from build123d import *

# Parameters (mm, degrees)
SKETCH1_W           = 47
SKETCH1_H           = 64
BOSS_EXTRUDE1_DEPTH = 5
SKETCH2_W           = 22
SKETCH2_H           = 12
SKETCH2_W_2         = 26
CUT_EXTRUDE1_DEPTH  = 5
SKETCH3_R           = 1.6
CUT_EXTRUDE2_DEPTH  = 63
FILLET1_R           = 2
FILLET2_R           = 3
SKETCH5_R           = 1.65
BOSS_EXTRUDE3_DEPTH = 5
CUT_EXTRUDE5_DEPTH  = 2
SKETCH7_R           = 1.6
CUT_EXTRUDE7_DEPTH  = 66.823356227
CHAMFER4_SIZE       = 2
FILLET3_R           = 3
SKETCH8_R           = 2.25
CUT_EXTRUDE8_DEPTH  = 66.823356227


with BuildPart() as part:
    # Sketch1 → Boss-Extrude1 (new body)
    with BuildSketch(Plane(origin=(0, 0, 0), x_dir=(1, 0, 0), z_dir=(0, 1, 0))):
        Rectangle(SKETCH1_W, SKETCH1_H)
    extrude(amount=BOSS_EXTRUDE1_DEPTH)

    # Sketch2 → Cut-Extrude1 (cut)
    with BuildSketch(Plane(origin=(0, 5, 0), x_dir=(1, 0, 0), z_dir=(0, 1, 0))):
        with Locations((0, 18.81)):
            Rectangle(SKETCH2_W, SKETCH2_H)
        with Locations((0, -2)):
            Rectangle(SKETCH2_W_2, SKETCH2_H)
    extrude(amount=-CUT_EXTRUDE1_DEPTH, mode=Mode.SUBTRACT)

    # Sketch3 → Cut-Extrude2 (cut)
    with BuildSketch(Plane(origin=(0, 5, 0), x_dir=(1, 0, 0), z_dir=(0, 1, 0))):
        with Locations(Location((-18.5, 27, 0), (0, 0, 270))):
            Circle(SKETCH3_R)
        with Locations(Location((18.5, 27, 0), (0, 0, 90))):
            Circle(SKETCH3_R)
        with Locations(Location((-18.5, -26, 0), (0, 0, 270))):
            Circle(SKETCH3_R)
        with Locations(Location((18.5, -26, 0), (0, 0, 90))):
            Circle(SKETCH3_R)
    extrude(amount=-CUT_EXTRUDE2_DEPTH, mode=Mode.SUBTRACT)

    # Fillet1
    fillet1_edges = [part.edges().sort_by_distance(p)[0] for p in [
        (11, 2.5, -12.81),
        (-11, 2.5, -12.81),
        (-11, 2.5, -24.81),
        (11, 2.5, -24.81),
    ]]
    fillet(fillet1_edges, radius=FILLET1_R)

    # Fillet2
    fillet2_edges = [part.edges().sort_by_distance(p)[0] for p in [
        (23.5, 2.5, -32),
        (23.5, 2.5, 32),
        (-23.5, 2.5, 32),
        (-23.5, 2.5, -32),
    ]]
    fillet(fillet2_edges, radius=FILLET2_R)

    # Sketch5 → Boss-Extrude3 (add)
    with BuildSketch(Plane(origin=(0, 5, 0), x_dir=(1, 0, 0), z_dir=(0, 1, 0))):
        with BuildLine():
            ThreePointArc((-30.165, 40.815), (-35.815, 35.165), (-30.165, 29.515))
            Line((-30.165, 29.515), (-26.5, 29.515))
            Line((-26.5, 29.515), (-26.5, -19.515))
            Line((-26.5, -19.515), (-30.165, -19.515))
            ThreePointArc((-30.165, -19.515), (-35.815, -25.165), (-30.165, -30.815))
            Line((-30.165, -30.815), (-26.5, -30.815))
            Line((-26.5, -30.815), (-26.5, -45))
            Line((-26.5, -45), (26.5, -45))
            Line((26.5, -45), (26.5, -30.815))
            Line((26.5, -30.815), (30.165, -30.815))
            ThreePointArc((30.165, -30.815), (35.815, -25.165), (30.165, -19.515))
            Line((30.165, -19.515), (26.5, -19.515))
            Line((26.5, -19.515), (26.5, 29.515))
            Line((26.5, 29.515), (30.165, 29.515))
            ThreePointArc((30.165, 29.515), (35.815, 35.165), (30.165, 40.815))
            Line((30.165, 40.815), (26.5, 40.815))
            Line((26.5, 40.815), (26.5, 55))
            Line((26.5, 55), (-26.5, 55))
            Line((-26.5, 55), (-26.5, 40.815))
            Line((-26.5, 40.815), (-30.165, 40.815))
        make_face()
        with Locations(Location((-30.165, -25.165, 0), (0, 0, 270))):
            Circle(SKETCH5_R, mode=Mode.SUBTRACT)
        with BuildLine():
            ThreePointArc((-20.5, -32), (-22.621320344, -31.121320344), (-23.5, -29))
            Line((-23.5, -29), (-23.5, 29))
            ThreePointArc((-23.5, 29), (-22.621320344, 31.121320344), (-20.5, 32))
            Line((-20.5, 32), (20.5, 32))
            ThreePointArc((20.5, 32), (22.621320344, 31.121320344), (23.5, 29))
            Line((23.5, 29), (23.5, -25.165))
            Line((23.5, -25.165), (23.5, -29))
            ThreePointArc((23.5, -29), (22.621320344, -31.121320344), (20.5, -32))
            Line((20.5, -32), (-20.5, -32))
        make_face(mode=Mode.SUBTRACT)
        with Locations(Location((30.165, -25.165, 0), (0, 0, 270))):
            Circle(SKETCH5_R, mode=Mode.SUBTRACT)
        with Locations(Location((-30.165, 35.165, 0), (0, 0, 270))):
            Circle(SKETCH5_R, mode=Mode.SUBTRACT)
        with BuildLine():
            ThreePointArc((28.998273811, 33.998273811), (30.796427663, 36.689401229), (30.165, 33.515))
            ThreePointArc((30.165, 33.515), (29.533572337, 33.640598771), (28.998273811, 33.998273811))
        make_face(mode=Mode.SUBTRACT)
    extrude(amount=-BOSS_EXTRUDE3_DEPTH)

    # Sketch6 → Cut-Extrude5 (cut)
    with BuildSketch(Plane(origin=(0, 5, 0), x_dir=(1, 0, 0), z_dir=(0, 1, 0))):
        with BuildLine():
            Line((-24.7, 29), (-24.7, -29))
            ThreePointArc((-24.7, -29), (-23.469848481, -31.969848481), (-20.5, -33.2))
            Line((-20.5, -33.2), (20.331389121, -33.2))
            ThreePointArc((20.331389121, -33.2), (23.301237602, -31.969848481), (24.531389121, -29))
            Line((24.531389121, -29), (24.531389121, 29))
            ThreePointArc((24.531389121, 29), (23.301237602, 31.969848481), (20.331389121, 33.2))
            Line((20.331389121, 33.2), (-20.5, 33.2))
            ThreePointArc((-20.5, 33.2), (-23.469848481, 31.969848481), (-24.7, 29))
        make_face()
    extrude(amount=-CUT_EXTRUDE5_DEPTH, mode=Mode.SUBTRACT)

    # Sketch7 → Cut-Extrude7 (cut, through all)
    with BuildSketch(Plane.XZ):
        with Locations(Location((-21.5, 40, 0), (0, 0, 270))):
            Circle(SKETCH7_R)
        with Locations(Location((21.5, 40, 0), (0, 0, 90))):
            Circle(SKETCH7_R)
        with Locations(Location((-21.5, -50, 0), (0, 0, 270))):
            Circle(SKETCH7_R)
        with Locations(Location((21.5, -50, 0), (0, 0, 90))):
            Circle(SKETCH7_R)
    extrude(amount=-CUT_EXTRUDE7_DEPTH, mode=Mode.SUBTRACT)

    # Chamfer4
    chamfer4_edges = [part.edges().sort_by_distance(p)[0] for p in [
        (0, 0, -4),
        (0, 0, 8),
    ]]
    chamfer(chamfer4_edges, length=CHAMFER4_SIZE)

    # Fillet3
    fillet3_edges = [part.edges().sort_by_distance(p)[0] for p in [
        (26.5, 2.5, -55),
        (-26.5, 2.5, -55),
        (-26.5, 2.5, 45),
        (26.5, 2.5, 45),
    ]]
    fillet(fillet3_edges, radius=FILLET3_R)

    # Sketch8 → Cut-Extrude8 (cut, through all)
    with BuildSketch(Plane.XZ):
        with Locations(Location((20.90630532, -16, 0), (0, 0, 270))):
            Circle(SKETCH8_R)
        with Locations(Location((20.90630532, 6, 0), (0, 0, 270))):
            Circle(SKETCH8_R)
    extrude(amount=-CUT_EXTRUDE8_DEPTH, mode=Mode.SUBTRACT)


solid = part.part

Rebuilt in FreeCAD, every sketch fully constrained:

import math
import FreeCAD as App
import Part
import Sketcher

V = App.Vector
Q = App.Units.Quantity


def edges_at(feature, points):
    """Names of the edges that pass closest to the given points."""
    edges = feature.Shape.Edges
    near = lambda p: min(range(len(edges)), key=lambda i: edges[i].distToShape(Part.Vertex(*p))[0])
    return sorted({f"Edge{near(p) + 1}" for p in points})

doc = App.newDocument("Part")
params = doc.addObject("Spreadsheet::Sheet", "Params")
for row, (alias, value) in enumerate([
    ("sketch1_width", "47 mm"),
    ("sketch1_height", "64 mm"),
    ("pad1_length", "5 mm"),
    ("sketch2_width", "22 mm"),
    ("sketch2_width2", "26 mm"),
    ("sketch2_height", "12 mm"),
    ("pocket1_length", "5 mm"),
    ("sketch3_diameter", "3.2 mm"),
    ("pocket2_length", "63 mm"),
    ("fillet_radius", "2 mm"),
    ("fillet2_radius", "3 mm"),
    ("sketch4_radius", "3 mm"),
    ("sketch4_diameter", "3.3 mm"),
    ("sketch4_width", "53 mm"),
    ("sketch4_width2", "41 mm"),
    ("sketch4_height", "58 mm"),
    ("pad2_length", "5 mm"),
    ("sketch5_radius", "4.2 mm"),
    ("sketch5_height", "58 mm"),
    ("pocket3_length", "2 mm"),
    ("sketch6_diameter", "3.2 mm"),
    ("chamfer_size", "2 mm"),
    ("fillet3_radius", "3 mm"),
    ("sketch7_diameter", "4.5 mm"),
], start=1):
    params.set(f"A{row}", alias)
    params.set(f"B{row}", "=" + value)
    params.setAlias(f"B{row}", alias)

body = doc.addObject("PartDesign::Body", "Body")

# Sketch on XZ plane
sketch1 = body.newObject("Sketcher::SketchObject", "Sketch")
sketch1.AttachmentSupport = (doc.getObject("XZ_Plane"), [""])
sketch1.MapMode = "FlatFace"
sketch1.addGeometry([
    Part.LineSegment(V(-24, -32, 0), V(-24, 32, 0)),
    Part.LineSegment(V(-24, 32, 0), V(24, 32, 0)),
    Part.LineSegment(V(24, 32, 0), V(24, -32, 0)),
    Part.LineSegment(V(24, -32, 0), V(-24, -32, 0)),
], False)
sketch1.addConstraint([
    Sketcher.Constraint("Coincident", 0, 2, 1, 1),
    Sketcher.Constraint("Coincident", 1, 2, 2, 1),
    Sketcher.Constraint("Coincident", 2, 2, 3, 1),
    Sketcher.Constraint("Coincident", 3, 2, 0, 1),
    Sketcher.Constraint("Vertical", 0),
    Sketcher.Constraint("Horizontal", 1),
    Sketcher.Constraint("Vertical", 2),
    Sketcher.Constraint("Horizontal", 3),
    Sketcher.Constraint("Symmetric", 0, 2, 2, 2, -1, 1),
    Sketcher.Constraint("DistanceX", 1, 1, 1, 2, Q("47 mm")),
    Sketcher.Constraint("DistanceY", 0, 1, 0, 2, Q("64 mm")),
])
sketch1.setExpression("Constraints[9]", "Params.sketch1_width")
sketch1.setExpression("Constraints[10]", "Params.sketch1_height")
pad1 = body.newObject("PartDesign::Pad", "Pad")
pad1.Profile = sketch1
pad1.setExpression("Length", "Params.pad1_length")
pad1.Reversed = True

# Sketch on XZ plane
sketch2 = body.newObject("Sketcher::SketchObject", "Sketch001")
sketch2.AttachmentSupport = (doc.getObject("XZ_Plane"), [""])
sketch2.MapMode = "FlatFace"
sketch2.AttachmentOffset = App.Placement(V(0, 0, -5), App.Rotation())
sketch2.addGeometry([
    Part.LineSegment(V(-11, -25, 0), V(-11, -13, 0)),  # 0
    Part.LineSegment(V(-11, -13, 0), V(11, -13, 0)),  # 1
    Part.LineSegment(V(11, -13, 0), V(11, -25, 0)),  # 2
    Part.LineSegment(V(11, -25, 0), V(-11, -25, 0)),  # 3
    Part.LineSegment(V(-13, -4, 0), V(-13, 8, 0)),  # 4
    Part.LineSegment(V(-13, 8, 0), V(13, 8, 0)),  # 5
    Part.LineSegment(V(13, 8, 0), V(13, -4, 0)),  # 6
    Part.LineSegment(V(13, -4, 0), V(-13, -4, 0)),  # 7
], False)
sketch2.addConstraint([
    Sketcher.Constraint("Coincident", 0, 2, 1, 1),
    Sketcher.Constraint("Coincident", 1, 2, 2, 1),
    Sketcher.Constraint("Coincident", 2, 2, 3, 1),
    Sketcher.Constraint("Coincident", 3, 2, 0, 1),
    Sketcher.Constraint("Coincident", 4, 2, 5, 1),
    Sketcher.Constraint("Coincident", 5, 2, 6, 1),
    Sketcher.Constraint("Coincident", 6, 2, 7, 1),
    Sketcher.Constraint("Coincident", 7, 2, 4, 1),
    Sketcher.Constraint("Vertical", 0),
    Sketcher.Constraint("Horizontal", 1),
    Sketcher.Constraint("Vertical", 2),
    Sketcher.Constraint("Horizontal", 3),
    Sketcher.Constraint("Vertical", 4),
    Sketcher.Constraint("Horizontal", 5),
    Sketcher.Constraint("Vertical", 6),
    Sketcher.Constraint("Horizontal", 7),
    Sketcher.Constraint("Equal", 2, 4),
    Sketcher.Constraint("DistanceX", 1, 1, 1, 2, Q("22 mm")),
    Sketcher.Constraint("DistanceX", 5, 1, 5, 2, Q("26 mm")),
    Sketcher.Constraint("DistanceY", 0, 1, 0, 2, Q("12 mm")),
    Sketcher.Constraint("DistanceX", 0, 2, -1, 1, Q("11 mm")),
    Sketcher.Constraint("DistanceX", 4, 2, -1, 1, Q("13 mm")),
    Sketcher.Constraint("DistanceY", -1, 1, 4, 2, Q("8 mm")),
    Sketcher.Constraint("DistanceY", 0, 2, -1, 1, Q("12.81 mm")),
])
sketch2.setExpression("Constraints[17]", "Params.sketch2_width")
sketch2.setExpression("Constraints[18]", "Params.sketch2_width2")
sketch2.setExpression("Constraints[19]", "Params.sketch2_height")
pocket1 = body.newObject("PartDesign::Pocket", "Pocket")
pocket1.Profile = sketch2
pocket1.setExpression("Length", "Params.pocket1_length")
pocket1.Reversed = True

# Sketch on XZ plane
sketch3 = body.newObject("Sketcher::SketchObject", "Sketch002")
sketch3.AttachmentSupport = (doc.getObject("XZ_Plane"), [""])
sketch3.MapMode = "FlatFace"
sketch3.AttachmentOffset = App.Placement(V(0, 0, -5), App.Rotation())
sketch3.addGeometry([
    Part.Circle(V(-18.5, -27, 0), V(0, 0, 1), 1.6),
    Part.Circle(V(18.5, -27, 0), V(0, 0, 1), 1.6),
    Part.Circle(V(-18.5, 26, 0), V(0, 0, 1), 1.6),
    Part.Circle(V(18.5, 26, 0), V(0, 0, 1), 1.6),
], False)
sketch3.addConstraint([
    Sketcher.Constraint("Equal", 0, 1),
    Sketcher.Constraint("Equal", 1, 2),
    Sketcher.Constraint("Equal", 2, 3),
    Sketcher.Constraint("Symmetric", 0, 3, 1, 3, -2),
    Sketcher.Constraint("Symmetric", 2, 3, 3, 3, -2),
    Sketcher.Constraint("Vertical", 0, 3, 2, 3),
    Sketcher.Constraint("Diameter", 0, Q("3.2 mm")),
    Sketcher.Constraint("DistanceY", 0, 3, -1, 1, Q("27 mm")),
    Sketcher.Constraint("DistanceY", -1, 1, 2, 3, Q("26 mm")),
    Sketcher.Constraint("DistanceX", 0, 3, 1, 3, Q("37 mm")),
])
sketch3.setExpression("Constraints[6]", "Params.sketch3_diameter")
pocket2 = body.newObject("PartDesign::Pocket", "Pocket001")
pocket2.Profile = sketch3
pocket2.setExpression("Length", "Params.pocket2_length")
pocket2.Reversed = True
doc.recompute()

fillet = body.newObject("PartDesign::Fillet", "Fillet")
fillet.Base = (pocket2, edges_at(pocket2, [
    (11, 2.5, -12.81),
    (-11, 2.5, -12.81),
    (-11, 2.5, -24.81),
    (11, 2.5, -24.81),
]))
fillet.setExpression("Radius", "Params.fillet_radius")
doc.recompute()

fillet2 = body.newObject("PartDesign::Fillet", "Fillet001")
fillet2.Base = (fillet, edges_at(fillet, [
    (23.5, 2.5, -32),
    (23.5, 2.5, 32),
    (-23.5, 2.5, 32),
    (-23.5, 2.5, -32),
]))
fillet2.setExpression("Radius", "Params.fillet2_radius")

# Sketch on XZ plane
sketch4 = body.newObject("Sketcher::SketchObject", "Sketch003")
sketch4.AttachmentSupport = (doc.getObject("XZ_Plane"), [""])
sketch4.MapMode = "FlatFace"
sketch4.AttachmentOffset = App.Placement(V(0, 0, -5), App.Rotation())
sketch4.addGeometry([
    Part.ArcOfCircle(Part.Circle(V(-30.2, -35.2, 0), V(0, 0, 1), 5.7), math.radians(90), math.radians(270)),  # 0
    Part.LineSegment(V(-30.2, -29.5, 0), V(-26.5, -29.5, 0)),  # 1
    Part.LineSegment(V(-26.5, -29.5, 0), V(-26.5, 19.5, 0)),  # 2
    Part.LineSegment(V(-26.5, 19.5, 0), V(-30.2, 19.5, 0)),  # 3
    Part.ArcOfCircle(Part.Circle(V(-30.2, 25.2, 0), V(0, 0, 1), 5.7), math.radians(90), math.radians(270)),  # 4
    Part.LineSegment(V(-30.2, 30.8, 0), V(-26.5, 30.8, 0)),  # 5
    Part.LineSegment(V(-26.5, 30.8, 0), V(-26.5, 45, 0)),  # 6
    Part.LineSegment(V(-26.5, 45, 0), V(26.5, 45, 0)),  # 7
    Part.LineSegment(V(26.5, 45, 0), V(26.5, 30.8, 0)),  # 8
    Part.LineSegment(V(26.5, 30.8, 0), V(30.2, 30.8, 0)),  # 9
    Part.ArcOfCircle(Part.Circle(V(30.2, 25.2, 0), V(0, 0, 1), 5.7), math.radians(-90), math.radians(90)),  # 10
    Part.LineSegment(V(30.2, 19.5, 0), V(26.5, 19.5, 0)),  # 11
    Part.LineSegment(V(26.5, 19.5, 0), V(26.5, -29.5, 0)),  # 12
    Part.LineSegment(V(26.5, -29.5, 0), V(30.2, -29.5, 0)),  # 13
    Part.ArcOfCircle(Part.Circle(V(30.2, -35.2, 0), V(0, 0, 1), 5.7), math.radians(-90), math.radians(90)),  # 14
    Part.LineSegment(V(30.2, -40.8, 0), V(26.5, -40.8, 0)),  # 15
    Part.LineSegment(V(26.5, -40.8, 0), V(26.5, -55, 0)),  # 16
    Part.LineSegment(V(26.5, -55, 0), V(-26.5, -55, 0)),  # 17
    Part.LineSegment(V(-26.5, -55, 0), V(-26.5, -40.8, 0)),  # 18
    Part.LineSegment(V(-26.5, -40.8, 0), V(-30.2, -40.8, 0)),  # 19
    Part.Circle(V(-30.2, 25.2, 0), V(0, 0, 1), 1.6),  # 20
    Part.LineSegment(V(20.5, 32, 0), V(-20.5, 32, 0)),  # 21
    Part.ArcOfCircle(Part.Circle(V(-20.5, 29, 0), V(0, 0, 1), 3), math.radians(90), math.radians(180)),  # 22
    Part.LineSegment(V(-23.5, 29, 0), V(-23.5, -29, 0)),  # 23
    Part.ArcOfCircle(Part.Circle(V(-20.5, -29, 0), V(0, 0, 1), 3), math.radians(180), math.radians(270)),  # 24
    Part.LineSegment(V(-20.5, -32, 0), V(20.5, -32, 0)),  # 25
    Part.ArcOfCircle(Part.Circle(V(20.5, -29, 0), V(0, 0, 1), 3), math.radians(-90), math.radians(0)),  # 26
    Part.LineSegment(V(23.5, -29, 0), V(23.5, 29, 0)),  # 27
    Part.ArcOfCircle(Part.Circle(V(20.5, 29, 0), V(0, 0, 1), 3), math.radians(0), math.radians(90)),  # 28
    Part.Circle(V(30.2, 25.2, 0), V(0, 0, 1), 1.6),  # 29
    Part.Circle(V(-30.2, -35.2, 0), V(0, 0, 1), 1.6),  # 30
    Part.ArcOfCircle(Part.Circle(V(30.2, -35.2, 0), V(0, 0, 1), 1.6), math.radians(90), math.radians(135)),  # 31
    Part.ArcOfCircle(Part.Circle(V(30.2, -35.2, 0), V(0, 0, 1), 1.6), math.radians(135), math.radians(450)),  # 32
], False)
sketch4.addConstraint([
    Sketcher.Constraint("Tangent", 0, 1, 1, 1),
    Sketcher.Constraint("Coincident", 1, 2, 2, 1),
    Sketcher.Constraint("Coincident", 2, 2, 3, 1),
    Sketcher.Constraint("Tangent", 3, 2, 4, 2),
    Sketcher.Constraint("Tangent", 4, 1, 5, 1),
    Sketcher.Constraint("Coincident", 5, 2, 6, 1),
    Sketcher.Constraint("Coincident", 6, 2, 7, 1),
    Sketcher.Constraint("Coincident", 7, 2, 8, 1),
    Sketcher.Constraint("Coincident", 8, 2, 9, 1),
    Sketcher.Constraint("Tangent", 9, 2, 10, 2),
    Sketcher.Constraint("Tangent", 10, 1, 11, 1),
    Sketcher.Constraint("Coincident", 11, 2, 12, 1),
    Sketcher.Constraint("Coincident", 12, 2, 13, 1),
    Sketcher.Constraint("Tangent", 13, 2, 14, 2),
    Sketcher.Constraint("Tangent", 14, 1, 15, 1),
    Sketcher.Constraint("Coincident", 15, 2, 16, 1),
    Sketcher.Constraint("Coincident", 16, 2, 17, 1),
    Sketcher.Constraint("Coincident", 17, 2, 18, 1),
    Sketcher.Constraint("Coincident", 18, 2, 19, 1),
    Sketcher.Constraint("Tangent", 19, 2, 0, 2),
    Sketcher.Constraint("Tangent", 21, 2, 22, 1),
    Sketcher.Constraint("Tangent", 22, 2, 23, 1),
    Sketcher.Constraint("Tangent", 23, 2, 24, 1),
    Sketcher.Constraint("Tangent", 24, 2, 25, 1),
    Sketcher.Constraint("Tangent", 25, 2, 26, 1),
    Sketcher.Constraint("Tangent", 26, 2, 27, 1),
    Sketcher.Constraint("Tangent", 27, 2, 28, 1),
    Sketcher.Constraint("Tangent", 28, 2, 21, 1),
    Sketcher.Constraint("Tangent", 31, 1, 32, 2),
    Sketcher.Constraint("Coincident", 32, 1, 31, 2),
    Sketcher.Constraint("Horizontal", 1),
    Sketcher.Constraint("Vertical", 2),
    Sketcher.Constraint("Horizontal", 3),
    Sketcher.Constraint("Horizontal", 5),
    Sketcher.Constraint("Vertical", 6),
    Sketcher.Constraint("Horizontal", 7),
    Sketcher.Constraint("Vertical", 8),
    Sketcher.Constraint("Horizontal", 9),
    Sketcher.Constraint("Horizontal", 11),
    Sketcher.Constraint("Vertical", 12),
    Sketcher.Constraint("Horizontal", 13),
    Sketcher.Constraint("Horizontal", 15),
    Sketcher.Constraint("Vertical", 16),
    Sketcher.Constraint("Horizontal", 17),
    Sketcher.Constraint("Vertical", 18),
    Sketcher.Constraint("Horizontal", 19),
    Sketcher.Constraint("Horizontal", 21),
    Sketcher.Constraint("Vertical", 23),
    Sketcher.Constraint("Horizontal", 25),
    Sketcher.Constraint("Vertical", 27),
    Sketcher.Constraint("Coincident", 20, 3, 4, 3),
    Sketcher.Constraint("Coincident", 29, 3, 10, 3),
    Sketcher.Constraint("Coincident", 30, 3, 0, 3),
    Sketcher.Constraint("Coincident", 31, 3, 14, 3),
    Sketcher.Constraint("Equal", 0, 4),
    Sketcher.Constraint("Equal", 4, 10),
    Sketcher.Constraint("Equal", 10, 14),
    Sketcher.Constraint("Equal", 22, 24),
    Sketcher.Constraint("Equal", 24, 26),
    Sketcher.Constraint("Equal", 26, 28),
    Sketcher.Constraint("Equal", 20, 29),
    Sketcher.Constraint("Equal", 29, 30),
    Sketcher.Constraint("Equal", 30, 31),
    Sketcher.Constraint("Symmetric", 22, 3, 26, 3, -1, 1),
    Sketcher.Constraint("Symmetric", 4, 3, 10, 3, -2),
    Sketcher.Constraint("Symmetric", 0, 3, 14, 3, -2),
    Sketcher.Constraint("Vertical", 0, 3, 4, 3),
    Sketcher.Constraint("Vertical", 2, 2, 5, 2),
    Sketcher.Constraint("Vertical", 8, 2, 11, 2),
    Sketcher.Constraint("Vertical", 12, 2, 15, 2),
    Sketcher.Constraint("Vertical", 6, 2, 17, 2),
    Sketcher.Constraint("Vertical", 14, 1, 31, 1),
    Sketcher.Constraint("Equal", 5, 9),
    Sketcher.Constraint("Equal", 8, 16),
    Sketcher.Constraint("Radius", 22, Q("3 mm")),
    Sketcher.Constraint("Diameter", 20, Q("3.3 mm")),
    Sketcher.Constraint("DistanceX", 7, 1, 7, 2, Q("53 mm")),
    Sketcher.Constraint("DistanceX", 21, 2, 21, 1, Q("41 mm")),
    Sketcher.Constraint("DistanceY", 23, 2, 23, 1, Q("58 mm")),
    Sketcher.Constraint("Radius", 0, Q("5.65 mm")),
    Sketcher.Constraint("DistanceY", -1, 1, 6, 2, Q("45 mm")),
    Sketcher.Constraint("DistanceY", 16, 2, -1, 1, Q("55 mm")),
    Sketcher.Constraint("DistanceY", 2, 1, 2, 2, Q("49.03 mm")),
    Sketcher.Constraint("DistanceX", 1, 1, 1, 2, Q("3.665 mm")),
    Sketcher.Constraint("DistanceX", -1, 1, 32, 1, Q("28.998274 mm")),
])
sketch4.setExpression("Constraints[74]", "Params.sketch4_radius")
sketch4.setExpression("Constraints[75]", "Params.sketch4_diameter")
sketch4.setExpression("Constraints[76]", "Params.sketch4_width")
sketch4.setExpression("Constraints[77]", "Params.sketch4_width2")
sketch4.setExpression("Constraints[78]", "Params.sketch4_height")
pad2 = body.newObject("PartDesign::Pad", "Pad001")
pad2.Profile = sketch4
pad2.setExpression("Length", "Params.pad2_length")

# Sketch on XZ plane
sketch5 = body.newObject("Sketcher::SketchObject", "Sketch004")
sketch5.AttachmentSupport = (doc.getObject("XZ_Plane"), [""])
sketch5.MapMode = "FlatFace"
sketch5.AttachmentOffset = App.Placement(V(0, 0, -5), App.Rotation())
sketch5.addGeometry([
    Part.LineSegment(V(-24.7, -29, 0), V(-24.7, 29, 0)),  # 0
    Part.ArcOfCircle(Part.Circle(V(-20.5, 29, 0), V(0, 0, 1), 4.2), math.radians(90), math.radians(180)),  # 1
    Part.LineSegment(V(-20.5, 33.2, 0), V(20.3, 33.2, 0)),  # 2
    Part.ArcOfCircle(Part.Circle(V(20.3, 29, 0), V(0, 0, 1), 4.2), math.radians(0), math.radians(90)),  # 3
    Part.LineSegment(V(24.5, 29, 0), V(24.5, -29, 0)),  # 4
    Part.ArcOfCircle(Part.Circle(V(20.3, -29, 0), V(0, 0, 1), 4.2), math.radians(-90), math.radians(0)),  # 5
    Part.LineSegment(V(20.3, -33.2, 0), V(-20.5, -33.2, 0)),  # 6
    Part.ArcOfCircle(Part.Circle(V(-20.5, -29, 0), V(0, 0, 1), 4.2), math.radians(180), math.radians(270)),  # 7
], False)
sketch5.addConstraint([
    Sketcher.Constraint("Tangent", 0, 2, 1, 2),
    Sketcher.Constraint("Tangent", 1, 1, 2, 1),
    Sketcher.Constraint("Tangent", 2, 2, 3, 2),
    Sketcher.Constraint("Tangent", 3, 1, 4, 1),
    Sketcher.Constraint("Tangent", 4, 2, 5, 2),
    Sketcher.Constraint("Tangent", 5, 1, 6, 1),
    Sketcher.Constraint("Tangent", 6, 2, 7, 2),
    Sketcher.Constraint("Tangent", 7, 1, 0, 1),
    Sketcher.Constraint("Vertical", 0),
    Sketcher.Constraint("Horizontal", 2),
    Sketcher.Constraint("Vertical", 4),
    Sketcher.Constraint("Horizontal", 6),
    Sketcher.Constraint("Equal", 1, 3),
    Sketcher.Constraint("Equal", 3, 5),
    Sketcher.Constraint("Equal", 5, 7),
    Sketcher.Constraint("Radius", 1, Q("4.2 mm")),
    Sketcher.Constraint("DistanceY", 0, 1, 0, 2, Q("58 mm")),
    Sketcher.Constraint("DistanceY", -1, 1, 1, 3, Q("29 mm")),
    Sketcher.Constraint("DistanceX", 1, 3, -1, 1, Q("20.5 mm")),
    Sketcher.Constraint("DistanceX", 2, 1, 2, 2, Q("40.831389 mm")),
])
sketch5.setExpression("Constraints[15]", "Params.sketch5_radius")
sketch5.setExpression("Constraints[16]", "Params.sketch5_height")
pocket3 = body.newObject("PartDesign::Pocket", "Pocket002")
pocket3.Profile = sketch5
pocket3.setExpression("Length", "Params.pocket3_length")
pocket3.Reversed = True

# Sketch on XZ plane
sketch6 = body.newObject("Sketcher::SketchObject", "Sketch005")
sketch6.AttachmentSupport = (doc.getObject("XZ_Plane"), [""])
sketch6.MapMode = "FlatFace"
sketch6.addGeometry([
    Part.Circle(V(-21.5, 40, 0), V(0, 0, 1), 1.6),
    Part.Circle(V(21.5, 40, 0), V(0, 0, 1), 1.6),
    Part.Circle(V(-21.5, -50, 0), V(0, 0, 1), 1.6),
    Part.Circle(V(21.5, -50, 0), V(0, 0, 1), 1.6),
], False)
sketch6.addConstraint([
    Sketcher.Constraint("Equal", 0, 1),
    Sketcher.Constraint("Equal", 1, 2),
    Sketcher.Constraint("Equal", 2, 3),
    Sketcher.Constraint("Symmetric", 0, 3, 1, 3, -2),
    Sketcher.Constraint("Symmetric", 2, 3, 3, 3, -2),
    Sketcher.Constraint("Vertical", 0, 3, 2, 3),
    Sketcher.Constraint("Diameter", 0, Q("3.2 mm")),
    Sketcher.Constraint("DistanceY", -1, 1, 0, 3, Q("40 mm")),
    Sketcher.Constraint("DistanceY", 2, 3, -1, 1, Q("50 mm")),
    Sketcher.Constraint("DistanceX", 0, 3, 1, 3, Q("43 mm")),
])
sketch6.setExpression("Constraints[6]", "Params.sketch6_diameter")
pocket4 = body.newObject("PartDesign::Pocket", "Pocket003")
pocket4.Profile = sketch6
pocket4.Type = "ThroughAll"
doc.recompute()

chamfer = body.newObject("PartDesign::Chamfer", "Chamfer")
chamfer.Base = (pocket4, edges_at(pocket4, [(0, 0, -4), (0, 0, 8)]))
chamfer.setExpression("Size", "Params.chamfer_size")
doc.recompute()

fillet3 = body.newObject("PartDesign::Fillet", "Fillet002")
fillet3.Base = (chamfer, edges_at(chamfer, [
    (26.5, 2.5, -55),
    (-26.5, 2.5, -55),
    (-26.5, 2.5, 45),
    (26.5, 2.5, 45),
]))
fillet3.setExpression("Radius", "Params.fillet3_radius")

# Sketch on XZ plane
sketch7 = body.newObject("Sketcher::SketchObject", "Sketch006")
sketch7.AttachmentSupport = (doc.getObject("XZ_Plane"), [""])
sketch7.MapMode = "FlatFace"
sketch7.addGeometry([
    Part.Circle(V(20.9, -16, 0), V(0, 0, 1), 2.2),
    Part.Circle(V(20.9, 6, 0), V(0, 0, 1), 2.2),
], False)
sketch7.addConstraint([
    Sketcher.Constraint("Equal", 0, 1),
    Sketcher.Constraint("Vertical", 0, 3, 1, 3),
    Sketcher.Constraint("Diameter", 0, Q("4.5 mm")),
    Sketcher.Constraint("DistanceY", 0, 3, -1, 1, Q("16 mm")),
    Sketcher.Constraint("DistanceY", -1, 1, 1, 3, Q("6 mm")),
    Sketcher.Constraint("DistanceX", -1, 1, 0, 3, Q("20.906305 mm")),
])
sketch7.setExpression("Constraints[2]", "Params.sketch7_diameter")
pocket5 = body.newObject("PartDesign::Pocket", "Pocket004")
pocket5.Profile = sketch7
pocket5.Type = "ThroughAll"

doc.recompute()
